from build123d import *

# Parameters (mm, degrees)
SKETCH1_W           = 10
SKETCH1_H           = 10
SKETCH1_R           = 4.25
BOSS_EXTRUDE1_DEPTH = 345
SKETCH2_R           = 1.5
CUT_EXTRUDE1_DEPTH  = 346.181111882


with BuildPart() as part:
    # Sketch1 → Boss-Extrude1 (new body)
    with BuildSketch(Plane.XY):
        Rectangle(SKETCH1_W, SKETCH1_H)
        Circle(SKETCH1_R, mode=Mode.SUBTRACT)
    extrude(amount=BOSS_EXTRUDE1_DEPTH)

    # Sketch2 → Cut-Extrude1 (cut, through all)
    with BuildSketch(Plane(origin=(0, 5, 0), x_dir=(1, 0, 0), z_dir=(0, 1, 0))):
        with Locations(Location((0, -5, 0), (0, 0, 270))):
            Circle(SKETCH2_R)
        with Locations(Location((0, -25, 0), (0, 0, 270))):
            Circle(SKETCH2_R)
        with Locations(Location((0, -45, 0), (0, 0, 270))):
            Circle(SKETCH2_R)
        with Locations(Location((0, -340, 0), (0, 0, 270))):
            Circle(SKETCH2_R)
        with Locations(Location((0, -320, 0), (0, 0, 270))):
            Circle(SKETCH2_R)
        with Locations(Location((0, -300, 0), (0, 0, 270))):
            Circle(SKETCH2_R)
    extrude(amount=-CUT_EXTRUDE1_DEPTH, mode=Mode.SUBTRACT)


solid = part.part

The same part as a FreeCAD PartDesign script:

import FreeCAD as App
import Part
import Sketcher

V = App.Vector

doc = App.newDocument("Part")
body = doc.addObject("PartDesign::Body", "Body")

sketch1 = body.newObject("Sketcher::SketchObject", "Sketch")
sketch1.AttachmentSupport = (doc.getObject("XY_Plane"), [""])
sketch1.MapMode = "FlatFace"
sketch1.addGeometry([
    Part.LineSegment(V(-5, 5, 0), V(-5, -5, 0)),
    Part.LineSegment(V(-5, -5, 0), V(5, -5, 0)),
    Part.LineSegment(V(5, -5, 0), V(5, 5, 0)),
    Part.LineSegment(V(5, 5, 0), V(-5, 5, 0)),
    Part.Circle(V(0, 0, 0), V(0, 0, 1), 4.2),
], False)
sketch1.addConstraint([
    Sketcher.Constraint("Coincident", 0, 2, 1, 1),
    Sketcher.Constraint("Coincident", 1, 2, 2, 1),
    Sketcher.Constraint("Coincident", 2, 2, 3, 1),
    Sketcher.Constraint("Coincident", 3, 2, 0, 1),
    Sketcher.Constraint("Vertical", 0),
    Sketcher.Constraint("Horizontal", 1),
    Sketcher.Constraint("Vertical", 2),
    Sketcher.Constraint("Horizontal", 3),
    Sketcher.Constraint("Coincident", 4, 3, -1, 1),
    Sketcher.Constraint("Symmetric", 0, 2, 2, 2, -1, 1),
    Sketcher.Constraint("Equal", 3, 0),
    Sketcher.Constraint("Diameter", 4, 8.5),
    Sketcher.Constraint("DistanceX", 1, 1, 1, 2, 10.0),
])
pad1 = body.newObject("PartDesign::Pad", "Pad")
pad1.Profile = sketch1
pad1.Length = 345

sketch2 = body.newObject("Sketcher::SketchObject", "Sketch001")
sketch2.AttachmentSupport = (doc.getObject("XZ_Plane"), [""])
sketch2.MapMode = "FlatFace"
sketch2.AttachmentOffset = App.Placement(V(0, 0, -5), App.Rotation())
sketch2.addGeometry([
    Part.Circle(V(0, 5, 0), V(0, 0, 1), 1.5),
    Part.Circle(V(0, 25, 0), V(0, 0, 1), 1.5),
    Part.Circle(V(0, 45, 0), V(0, 0, 1), 1.5),
    Part.Circle(V(0, 340, 0), V(0, 0, 1), 1.5),
    Part.Circle(V(0, 320, 0), V(0, 0, 1), 1.5),
    Part.Circle(V(0, 300, 0), V(0, 0, 1), 1.5),
], False)
sketch2.addConstraint([
    Sketcher.Constraint("Equal", 0, 1),
    Sketcher.Constraint("Equal", 1, 2),
    Sketcher.Constraint("Equal", 2, 3),
    Sketcher.Constraint("Equal", 3, 4),
    Sketcher.Constraint("Equal", 4, 5),
    Sketcher.Constraint("PointOnObject", 0, 3, -2),
    Sketcher.Constraint("PointOnObject", 1, 3, -2),
    Sketcher.Constraint("PointOnObject", 2, 3, -2),
    Sketcher.Constraint("PointOnObject", 3, 3, -2),
    Sketcher.Constraint("PointOnObject", 4, 3, -2),
    Sketcher.Constraint("PointOnObject", 5, 3, -2),
    Sketcher.Constraint("Diameter", 0, 3.0),
    Sketcher.Constraint("DistanceY", -1, 1, 0, 3, 5.0),
    Sketcher.Constraint("DistanceY", -1, 1, 1, 3, 25.0),
    Sketcher.Constraint("DistanceY", -1, 1, 2, 3, 45.0),
    Sketcher.Constraint("DistanceY", -1, 1, 3, 3, 340.0),
    Sketcher.Constraint("DistanceY", -1, 1, 4, 3, 320.0),
    Sketcher.Constraint("DistanceY", -1, 1, 5, 3, 300.0),
])
pocket1 = body.newObject("PartDesign::Pocket", "Pocket")
pocket1.Profile = sketch2
pocket1.Type = "ThroughAll"
pocket1.Reversed = True

doc.recompute()
